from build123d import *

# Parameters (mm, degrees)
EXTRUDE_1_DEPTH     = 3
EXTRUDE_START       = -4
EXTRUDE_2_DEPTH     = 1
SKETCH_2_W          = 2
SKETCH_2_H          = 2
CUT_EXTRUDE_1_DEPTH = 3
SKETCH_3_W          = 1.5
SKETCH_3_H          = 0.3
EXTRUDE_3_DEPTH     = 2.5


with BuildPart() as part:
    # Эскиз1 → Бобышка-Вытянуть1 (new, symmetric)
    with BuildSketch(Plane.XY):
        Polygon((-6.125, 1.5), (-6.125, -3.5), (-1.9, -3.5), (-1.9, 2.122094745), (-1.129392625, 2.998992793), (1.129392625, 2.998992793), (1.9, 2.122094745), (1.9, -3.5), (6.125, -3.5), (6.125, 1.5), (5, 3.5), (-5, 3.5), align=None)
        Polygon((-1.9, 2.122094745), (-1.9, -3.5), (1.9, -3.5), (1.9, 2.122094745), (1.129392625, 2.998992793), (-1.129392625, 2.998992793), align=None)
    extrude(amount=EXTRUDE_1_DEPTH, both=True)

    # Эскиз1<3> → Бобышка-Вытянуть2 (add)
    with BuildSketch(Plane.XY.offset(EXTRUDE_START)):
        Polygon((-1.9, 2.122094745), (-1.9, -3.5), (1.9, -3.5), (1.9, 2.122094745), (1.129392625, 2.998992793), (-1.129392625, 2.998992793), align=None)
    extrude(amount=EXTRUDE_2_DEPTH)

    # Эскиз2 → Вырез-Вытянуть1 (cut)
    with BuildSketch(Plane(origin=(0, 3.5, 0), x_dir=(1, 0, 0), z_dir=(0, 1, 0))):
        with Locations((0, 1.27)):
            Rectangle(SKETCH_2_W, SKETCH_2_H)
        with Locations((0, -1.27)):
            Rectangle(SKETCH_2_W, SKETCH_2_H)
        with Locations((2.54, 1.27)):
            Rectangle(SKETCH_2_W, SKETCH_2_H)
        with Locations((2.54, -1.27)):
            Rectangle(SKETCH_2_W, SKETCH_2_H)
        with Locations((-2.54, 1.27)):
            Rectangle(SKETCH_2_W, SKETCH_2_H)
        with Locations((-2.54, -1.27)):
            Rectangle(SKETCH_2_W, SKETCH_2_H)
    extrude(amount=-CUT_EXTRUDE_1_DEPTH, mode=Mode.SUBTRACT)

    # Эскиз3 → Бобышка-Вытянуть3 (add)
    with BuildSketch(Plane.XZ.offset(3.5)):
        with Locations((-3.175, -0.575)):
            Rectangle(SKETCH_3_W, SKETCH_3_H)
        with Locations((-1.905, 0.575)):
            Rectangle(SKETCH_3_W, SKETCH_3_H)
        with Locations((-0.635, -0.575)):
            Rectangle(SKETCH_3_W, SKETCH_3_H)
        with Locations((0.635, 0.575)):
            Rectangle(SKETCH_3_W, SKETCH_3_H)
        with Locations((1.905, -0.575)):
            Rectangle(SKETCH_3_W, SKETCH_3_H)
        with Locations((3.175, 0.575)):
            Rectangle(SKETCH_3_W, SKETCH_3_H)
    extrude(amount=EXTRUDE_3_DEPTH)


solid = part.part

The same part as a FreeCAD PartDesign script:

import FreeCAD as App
import Part
import Sketcher
Q = App.Units.Quantity


def add_polygon(sketch, points):
    """Adds a closed chain of lines whose ends are joined by coincident constraints."""
    first, n = sketch.GeometryCount, len(points)
    for a, b in zip(points, points[1:] + points[:1]):
        sketch.addGeometry(Part.LineSegment(App.Vector(*a, 0), App.Vector(*b, 0)), False)
    for i in range(n):
        sketch.addConstraint(Sketcher.Constraint("Coincident", first + i, 2, first + (i + 1) % n, 1))

doc = App.newDocument("Part")
body = doc.addObject("PartDesign::Body", "Body")

# Sketch on XY plane
sketch1 = doc.addObject("Sketcher::SketchObject", "Sketch")
body.addObject(sketch1)
sketch1.AttachmentSupport = (doc.XY_Plane, [""])
sketch1.MapMode = "FlatFace"
add_polygon(sketch1, [(-6.1, 1.5), (-6.1, -3.5), (6.1, -3.5), (6.1, 1.5), (5, 3.5), (-5, 3.5)])  # lines 0-5
sketch1.addConstraint([
    Sketcher.Constraint("Vertical", 0),
    Sketcher.Constraint("Horizontal", 1),
    Sketcher.Constraint("Vertical", 2),
    Sketcher.Constraint("Horizontal", 4),
    Sketcher.Constraint("Symmetric", 2, 2, 5, 2, -2),
    Sketcher.Constraint("Equal", 3, 5),
    Sketcher.Constraint("DistanceX", 4, 2, 4, 1, Q("10 mm")),
    Sketcher.Constraint("DistanceY", 0, 2, 0, 1, Q("5 mm")),
    Sketcher.Constraint("DistanceY", 2, 2, 3, 2, Q("2 mm")),
    Sketcher.Constraint("DistanceX", 1, 1, 1, 2, Q("12.25 mm")),
    Sketcher.Constraint("DistanceY", 0, 2, -1, 1, Q("3.5 mm")),
])
pad1 = doc.addObject("PartDesign::Pad", "Pad")
body.addObject(pad1)
pad1.Profile = sketch1
pad1.Length = 6
pad1.Midplane = True

# Sketch on XY plane
sketch2 = doc.addObject("Sketcher::SketchObject", "Sketch001")
body.addObject(sketch2)
sketch2.AttachmentSupport = (doc.XY_Plane, [""])
sketch2.MapMode = "FlatFace"
sketch2.AttachmentOffset = App.Placement(App.Vector(0, 0, -4), App.Rotation())
add_polygon(sketch2, [(-1.9, 2.1), (-1.9, -3.5), (1.9, -3.5), (1.9, 2.1), (1.1, 3), (-1.1, 3)])  # lines 0-5
sketch2.addConstraint([
    Sketcher.Constraint("Vertical", 0),
    Sketcher.Constraint("Horizontal", 1),
    Sketcher.Constraint("Vertical", 2),
    Sketcher.Constraint("Horizontal", 4),
    Sketcher.Constraint("Symmetric", 2, 2, 5, 2, -2),
    Sketcher.Constraint("Equal", 3, 5),
    Sketcher.Constraint("DistanceX", 1, 1, 1, 2, Q("3.8 mm")),
    Sketcher.Constraint("DistanceY", 0, 2, -1, 1, Q("3.5 mm")),
    Sketcher.Constraint("DistanceY", 2, 2, 3, 2, Q("0.876898 mm")),
    Sketcher.Constraint("DistanceX", 4, 2, 4, 1, Q("2.258785 mm")),
    Sketcher.Constraint("DistanceY", 0, 2, 0, 1, Q("5.622095 mm")),
])
pad2 = doc.addObject("PartDesign::Pad", "Pad001")
body.addObject(pad2)
pad2.Profile = sketch2
pad2.Length = 1

# Sketch on XZ plane
sketch3 = doc.addObject("Sketcher::SketchObject", "Sketch002")
body.addObject(sketch3)
sketch3.AttachmentSupport = (doc.XZ_Plane, [""])
sketch3.MapMode = "FlatFace"
sketch3.AttachmentOffset = App.Placement(App.Vector(0, 0, -3.5), App.Rotation())
add_polygon(sketch3, [(-1, -2.3), (-1, -0.3), (1, -0.3), (1, -2.3)])  # lines 0-3
add_polygon(sketch3, [(-1, 0.3), (-1, 2.3), (1, 2.3), (1, 0.3)])  # lines 4-7
add_polygon(sketch3, [(1.5, -2.3), (1.5, -0.3), (3.5, -0.3), (3.5, -2.3)])  # lines 8-11
add_polygon(sketch3, [(1.5, 0.3), (1.5, 2.3), (3.5, 2.3), (3.5, 0.3)])  # lines 12-15
add_polygon(sketch3, [(-3.5, -2.3), (-3.5, -0.3), (-1.5, -0.3), (-1.5, -2.3)])  # lines 16-19
add_polygon(sketch3, [(-3.5, 0.3), (-3.5, 2.3), (-1.5, 2.3), (-1.5, 0.3)])  # lines 20-23
sketch3.addConstraint([
    Sketcher.Constraint("Vertical", 0),
    Sketcher.Constraint("Horizontal", 1),
    Sketcher.Constraint("Vertical", 2),
    Sketcher.Constraint("Horizontal", 3),
    Sketcher.Constraint("Vertical", 4),
    Sketcher.Constraint("Horizontal", 5),
    Sketcher.Constraint("Vertical", 6),
    Sketcher.Constraint("Horizontal", 7),
    Sketcher.Constraint("Vertical", 8),
    Sketcher.Constraint("Horizontal", 9),
    Sketcher.Constraint("Vertical", 10),
    Sketcher.Constraint("Horizontal", 11),
    Sketcher.Constraint("Vertical", 12),
    Sketcher.Constraint("Horizontal", 13),
    Sketcher.Constraint("Vertical", 14),
    Sketcher.Constraint("Horizontal", 15),
    Sketcher.Constraint("Vertical", 16),
    Sketcher.Constraint("Horizontal", 17),
    Sketcher.Constraint("Vertical", 18),
    Sketcher.Constraint("Horizontal", 19),
    Sketcher.Constraint("Vertical", 20),
    Sketcher.Constraint("Horizontal", 21),
    Sketcher.Constraint("Vertical", 22),
    Sketcher.Constraint("Horizontal", 23),
    Sketcher.Constraint("Symmetric", 2, 2, 4, 2, -1, 1),
    Sketcher.Constraint("Symmetric", 0, 2, 6, 2, -1, 1),
    Sketcher.Constraint("Symmetric", 14, 2, 16, 2, -1, 1),
    Sketcher.Constraint("Symmetric", 12, 2, 18, 2, -1, 1),
    Sketcher.Constraint("Symmetric", 10, 2, 20, 2, -1, 1),
    Sketcher.Constraint("Symmetric", 8, 2, 22, 2, -1, 1),
    Sketcher.Constraint("Symmetric", 9, 2, 16, 2, -2),
    Sketcher.Constraint("Symmetric", 11, 2, 18, 2, -2),
    Sketcher.Constraint("Horizontal", 1, 2, 8, 2),
    Sketcher.Constraint("Horizontal", 3, 2, 10, 2),
    Sketcher.Constraint("Vertical", 3, 2, 4, 2),
    Sketcher.Constraint("Equal", 7, 9),
    Sketcher.Constraint("Equal", 23, 0),
    Sketcher.Constraint("DistanceX", 1, 1, 1, 2, Q("2 mm")),
    Sketcher.Constraint("DistanceY", 0, 2, -1, 1, Q("0.27 mm")),
    Sketcher.Constraint("DistanceX", -1, 1, 8, 2, Q("1.54 mm")),
])
pocket1 = doc.addObject("PartDesign::Pocket", "Pocket")
body.addObject(pocket1)
pocket1.Profile = sketch3
pocket1.Length = 3
pocket1.Reversed = True

# Sketch on XZ plane
sketch4 = doc.addObject("Sketcher::SketchObject", "Sketch003")
body.addObject(sketch4)
sketch4.AttachmentSupport = (doc.XZ_Plane, [""])
sketch4.MapMode = "FlatFace"
sketch4.AttachmentOffset = App.Placement(App.Vector(0, 0, 3.5), App.Rotation())
add_polygon(sketch4, [(-3.92, -0.42), (-3.92, -0.72), (-2.42, -0.72), (-2.42, -0.42)])  # lines 0-3
add_polygon(sketch4, [(-2.65, 0.72), (-2.65, 0.42), (-1.16, 0.42), (-1.16, 0.72)])  # lines 4-7
add_polygon(sketch4, [(-1.39, -0.42), (-1.39, -0.72), (0.12, -0.72), (0.12, -0.42)])  # lines 8-11
add_polygon(sketch4, [(-0.12, 0.72), (-0.12, 0.42), (1.39, 0.42), (1.39, 0.72)])  # lines 12-15
add_polygon(sketch4, [(1.16, -0.42), (1.16, -0.72), (2.65, -0.72), (2.65, -0.42)])  # lines 16-19
add_polygon(sketch4, [(2.42, 0.72), (2.42, 0.42), (3.92, 0.42), (3.92, 0.72)])  # lines 20-23
sketch4.addConstraint([
    Sketcher.Constraint("Vertical", 0),
    Sketcher.Constraint("Horizontal", 1),
    Sketcher.Constraint("Vertical", 2),
    Sketcher.Constraint("Horizontal", 3),
    Sketcher.Constraint("Vertical", 4),
    Sketcher.Constraint("Horizontal", 5),
    Sketcher.Constraint("Vertical", 6),
    Sketcher.Constraint("Horizontal", 7),
    Sketcher.Constraint("Vertical", 8),
    Sketcher.Constraint("Horizontal", 9),
    Sketcher.Constraint("Vertical", 10),
    Sketcher.Constraint("Horizontal", 11),
    Sketcher.Constraint("Vertical", 12),
    Sketcher.Constraint("Horizontal", 13),
    Sketcher.Constraint("Vertical", 14),
    Sketcher.Constraint("Horizontal", 15),
    Sketcher.Constraint("Vertical", 16),
    Sketcher.Constraint("Horizontal", 17),
    Sketcher.Constraint("Vertical", 18),
    Sketcher.Constraint("Horizontal", 19),
    Sketcher.Constraint("Vertical", 20),
    Sketcher.Constraint("Horizontal", 21),
    Sketcher.Constraint("Vertical", 22),
    Sketcher.Constraint("Horizontal", 23),
    Sketcher.Constraint("Symmetric", 10, 2, 12, 2, -1, 1),
    Sketcher.Constraint("Symmetric", 8, 2, 14, 2, -1, 1),
    Sketcher.Constraint("Symmetric", 6, 2, 16, 2, -1, 1),
    Sketcher.Constraint("Symmetric", 4, 2, 18, 2, -1, 1),
    Sketcher.Constraint("Symmetric", 2, 2, 20, 2, -1, 1),
    Sketcher.Constraint("Symmetric", 0, 2, 22, 2, -1, 1),
    Sketcher.Constraint("Horizontal", 1, 2, 8, 2),
    Sketcher.Constraint("Horizontal", 3, 2, 10, 2),
    Sketcher.Constraint("Horizontal", 5, 2, 12, 2),
    Sketcher.Constraint("Horizontal", 7, 2, 14, 2),
    Sketcher.Constraint("Equal", 3, 5),
    Sketcher.Constraint("Equal", 7, 9),
    Sketcher.Constraint("DistanceX", 1, 1, 1, 2, Q("1.5 mm")),
    Sketcher.Constraint("DistanceY", 0, 2, 0, 1, Q("0.3 mm")),
    Sketcher.Constraint("DistanceX", 4, 2, 2, 2, Q("0.23 mm")),
    Sketcher.Constraint("DistanceY", 2, 2, 4, 2, Q("0.85 mm")),
    Sketcher.Constraint("DistanceX", 1, 2, 8, 2, Q("1.04 mm")),
    Sketcher.Constraint("DistanceX", 12, 2, 10, 2, Q("0.23 mm")),
])
pad3 = doc.addObject("PartDesign::Pad", "Pad002")
body.addObject(pad3)
pad3.Profile = sketch4
pad3.Length = 2.5

doc.recompute()
